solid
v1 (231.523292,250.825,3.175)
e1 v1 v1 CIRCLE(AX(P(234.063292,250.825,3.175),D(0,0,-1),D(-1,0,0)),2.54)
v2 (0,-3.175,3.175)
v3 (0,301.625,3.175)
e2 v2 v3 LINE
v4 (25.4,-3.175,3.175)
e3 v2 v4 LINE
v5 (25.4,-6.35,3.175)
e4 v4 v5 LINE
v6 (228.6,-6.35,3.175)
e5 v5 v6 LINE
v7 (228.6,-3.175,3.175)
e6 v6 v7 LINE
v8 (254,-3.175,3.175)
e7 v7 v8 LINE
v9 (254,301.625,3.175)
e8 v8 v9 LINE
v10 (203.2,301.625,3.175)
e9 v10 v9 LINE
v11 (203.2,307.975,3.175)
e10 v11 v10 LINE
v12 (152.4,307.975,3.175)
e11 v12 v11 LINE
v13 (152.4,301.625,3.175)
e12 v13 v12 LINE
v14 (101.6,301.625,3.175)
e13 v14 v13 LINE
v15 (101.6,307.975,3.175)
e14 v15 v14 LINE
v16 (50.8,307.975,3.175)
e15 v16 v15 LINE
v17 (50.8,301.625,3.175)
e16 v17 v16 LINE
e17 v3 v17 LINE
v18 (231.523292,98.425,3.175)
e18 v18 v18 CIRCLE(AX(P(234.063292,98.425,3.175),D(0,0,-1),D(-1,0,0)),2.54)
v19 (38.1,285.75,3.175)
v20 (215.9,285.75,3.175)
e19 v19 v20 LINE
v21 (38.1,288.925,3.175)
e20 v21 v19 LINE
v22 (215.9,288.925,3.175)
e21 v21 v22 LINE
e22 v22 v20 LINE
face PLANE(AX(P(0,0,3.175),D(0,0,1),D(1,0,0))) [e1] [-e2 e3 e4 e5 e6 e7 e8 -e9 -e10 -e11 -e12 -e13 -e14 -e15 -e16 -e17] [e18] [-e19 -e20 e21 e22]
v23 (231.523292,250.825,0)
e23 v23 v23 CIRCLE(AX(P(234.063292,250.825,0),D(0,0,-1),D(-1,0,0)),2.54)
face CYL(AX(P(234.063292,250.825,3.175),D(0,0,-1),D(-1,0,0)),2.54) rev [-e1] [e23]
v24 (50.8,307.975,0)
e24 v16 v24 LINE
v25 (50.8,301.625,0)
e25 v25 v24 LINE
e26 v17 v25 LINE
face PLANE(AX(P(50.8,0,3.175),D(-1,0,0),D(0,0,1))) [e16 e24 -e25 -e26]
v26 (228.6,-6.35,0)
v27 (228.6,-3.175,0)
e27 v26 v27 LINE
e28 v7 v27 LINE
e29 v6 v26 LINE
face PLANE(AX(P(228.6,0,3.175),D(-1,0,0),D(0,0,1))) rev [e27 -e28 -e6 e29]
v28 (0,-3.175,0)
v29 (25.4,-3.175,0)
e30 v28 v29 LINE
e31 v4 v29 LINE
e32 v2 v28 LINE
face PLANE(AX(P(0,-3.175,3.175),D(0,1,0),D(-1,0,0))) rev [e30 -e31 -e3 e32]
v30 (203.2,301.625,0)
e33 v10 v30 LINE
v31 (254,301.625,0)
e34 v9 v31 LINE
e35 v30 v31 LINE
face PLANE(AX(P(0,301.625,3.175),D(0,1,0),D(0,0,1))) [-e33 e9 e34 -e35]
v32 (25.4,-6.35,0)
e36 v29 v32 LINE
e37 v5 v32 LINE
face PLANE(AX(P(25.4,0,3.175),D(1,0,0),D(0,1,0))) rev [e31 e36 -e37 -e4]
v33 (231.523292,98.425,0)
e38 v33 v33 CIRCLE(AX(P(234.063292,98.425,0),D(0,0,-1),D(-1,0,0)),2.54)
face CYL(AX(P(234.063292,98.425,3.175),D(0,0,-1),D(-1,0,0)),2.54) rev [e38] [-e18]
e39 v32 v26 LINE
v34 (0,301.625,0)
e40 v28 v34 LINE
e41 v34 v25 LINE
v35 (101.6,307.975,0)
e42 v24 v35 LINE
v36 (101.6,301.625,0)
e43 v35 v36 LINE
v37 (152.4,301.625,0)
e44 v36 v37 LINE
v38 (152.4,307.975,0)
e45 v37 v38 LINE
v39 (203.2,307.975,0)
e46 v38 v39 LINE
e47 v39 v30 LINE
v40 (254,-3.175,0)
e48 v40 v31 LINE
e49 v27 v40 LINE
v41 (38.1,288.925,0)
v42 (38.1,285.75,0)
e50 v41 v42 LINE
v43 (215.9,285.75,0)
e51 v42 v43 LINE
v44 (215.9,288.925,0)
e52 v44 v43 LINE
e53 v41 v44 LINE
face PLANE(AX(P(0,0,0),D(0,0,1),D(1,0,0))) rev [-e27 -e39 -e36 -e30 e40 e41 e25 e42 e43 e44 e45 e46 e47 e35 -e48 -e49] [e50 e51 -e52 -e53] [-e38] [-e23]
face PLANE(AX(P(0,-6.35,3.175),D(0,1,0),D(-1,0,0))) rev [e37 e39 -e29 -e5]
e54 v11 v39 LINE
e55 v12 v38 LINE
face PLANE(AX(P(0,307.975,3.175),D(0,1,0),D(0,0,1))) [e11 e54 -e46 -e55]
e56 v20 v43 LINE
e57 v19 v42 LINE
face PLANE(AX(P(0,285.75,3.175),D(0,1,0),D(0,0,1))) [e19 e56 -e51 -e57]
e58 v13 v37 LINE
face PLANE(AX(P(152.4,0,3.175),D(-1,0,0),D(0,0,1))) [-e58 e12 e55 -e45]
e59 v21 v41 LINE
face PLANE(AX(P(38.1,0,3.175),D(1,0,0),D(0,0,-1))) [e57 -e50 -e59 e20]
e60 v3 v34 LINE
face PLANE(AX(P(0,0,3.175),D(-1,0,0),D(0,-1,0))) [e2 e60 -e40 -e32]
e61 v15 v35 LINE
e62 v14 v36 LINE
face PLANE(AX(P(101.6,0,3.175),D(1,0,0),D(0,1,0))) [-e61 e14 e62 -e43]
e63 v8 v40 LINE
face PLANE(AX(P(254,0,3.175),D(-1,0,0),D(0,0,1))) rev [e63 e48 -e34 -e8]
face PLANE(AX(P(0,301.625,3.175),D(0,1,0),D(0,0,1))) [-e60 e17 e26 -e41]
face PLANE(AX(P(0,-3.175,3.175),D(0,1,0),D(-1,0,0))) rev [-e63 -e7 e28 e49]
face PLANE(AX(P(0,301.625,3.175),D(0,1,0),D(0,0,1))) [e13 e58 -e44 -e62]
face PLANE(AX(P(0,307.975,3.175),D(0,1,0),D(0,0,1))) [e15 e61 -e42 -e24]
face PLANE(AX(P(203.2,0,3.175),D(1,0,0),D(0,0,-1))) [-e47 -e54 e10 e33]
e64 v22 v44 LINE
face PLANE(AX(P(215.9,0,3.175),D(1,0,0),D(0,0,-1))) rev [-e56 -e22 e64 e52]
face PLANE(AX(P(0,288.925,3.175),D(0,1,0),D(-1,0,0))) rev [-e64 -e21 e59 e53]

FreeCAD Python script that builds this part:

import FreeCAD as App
import Part
import Sketcher
Q = App.Units.Quantity


def add_polygon(sketch, points):
    """Adds a closed chain of lines whose ends are joined by coincident constraints."""
    first, n = sketch.GeometryCount, len(points)
    for a, b in zip(points, points[1:] + points[:1]):
        sketch.addGeometry(Part.LineSegment(App.Vector(*a, 0), App.Vector(*b, 0)), False)
    for i in range(n):
        sketch.addConstraint(Sketcher.Constraint("Coincident", first + i, 2, first + (i + 1) % n, 1))

doc = App.newDocument("Part")
body = doc.addObject("PartDesign::Body", "Body")

sketch1 = doc.addObject("Sketcher::SketchObject", "Sketch")
body.addObject(sketch1)
sketch1.AttachmentSupport = (doc.XY_Plane, [""])
sketch1.MapMode = "FlatFace"
add_polygon(sketch1, [(228.6, -6.35), (228.6, -3.175), (254, -3.175), (254, 301.625), (203.2, 301.625), (203.2, 307.975), (152.4, 307.975), (152.4, 301.625), (101.6, 301.625), (101.6, 307.975), (50.8, 307.975), (50.8, 301.625), (0, 301.625), (0, -3.175), (25.4, -3.175), (25.4, -6.35)])
add_polygon(sketch1, [(215.9, 285.75), (38.1, 285.75), (38.1, 288.925), (215.9, 288.925)])
sketch1.addConstraint([
    Sketcher.Constraint("Vertical", 0),
    Sketcher.Constraint("Horizontal", 1),
    Sketcher.Constraint("Vertical", 2),
    Sketcher.Constraint("Horizontal", 3),
    Sketcher.Constraint("Vertical", 4),
    Sketcher.Constraint("Horizontal", 5),
    Sketcher.Constraint("Vertical", 6),
    Sketcher.Constraint("Horizontal", 7),
    Sketcher.Constraint("Vertical", 8),
    Sketcher.Constraint("Horizontal", 9),
    Sketcher.Constraint("Vertical", 10),
    Sketcher.Constraint("Horizontal", 11),
    Sketcher.Constraint("Vertical", 12),
    Sketcher.Constraint("Horizontal", 13),
    Sketcher.Constraint("Vertical", 14),
    Sketcher.Constraint("Horizontal", 15),
    Sketcher.Constraint("Horizontal", 16),
    Sketcher.Constraint("Vertical", 17),
    Sketcher.Constraint("Horizontal", 18),
    Sketcher.Constraint("Vertical", 19),
    Sketcher.Constraint("PointOnObject", 11, 2, -2),
    Sketcher.Constraint("Horizontal", 3, 2, 6, 2),
    Sketcher.Constraint("Horizontal", 5, 2, 8, 2),
    Sketcher.Constraint("Horizontal", 7, 2, 10, 2),
    Sketcher.Constraint("Horizontal", 1, 2, 12, 2),
    Sketcher.Constraint("Equal", 3, 5),
    Sketcher.Constraint("Equal", 5, 7),
    Sketcher.Constraint("Equal", 7, 9),
    Sketcher.Constraint("Equal", 9, 11),
    Sketcher.Constraint("Equal", 1, 13),
    Sketcher.Constraint("Equal", 14, 17),
    Sketcher.Constraint("DistanceX", 1, 1, 1, 2, Q("1 in")),
    Sketcher.Constraint("DistanceX", 3, 2, 3, 1, Q("2 in")),
    Sketcher.Constraint("DistanceX", 16, 2, 16, 1, Q("7 in")),
    Sketcher.Constraint("DistanceY", 2, 1, 2, 2, Q("12 in")),
    Sketcher.Constraint("DistanceY", 4, 1, 4, 2, Q("0.25 in")),
    Sketcher.Constraint("DistanceX", -1, 1, 16, 2, Q("1.5 in")),
    Sketcher.Constraint("DistanceY", 17, 2, 10, 2, Q("0.5 in")),
    Sketcher.Constraint("DistanceY", 0, 1, 0, 2, Q("0.125 in")),
    Sketcher.Constraint("DistanceY", 14, 2, -1, 1, Q("0.25 in")),
])
pad1 = doc.addObject("PartDesign::Pad", "Pad")
body.addObject(pad1)
pad1.Profile = sketch1
pad1.Length = Q("0.125 in")

sketch2 = doc.addObject("Sketcher::SketchObject", "Sketch001")
body.addObject(sketch2)
sketch2.AttachmentSupport = (doc.XY_Plane, [""])
sketch2.MapMode = "FlatFace"
sketch2.addGeometry([
    Part.Circle(App.Vector(234.063292, 250.825, 0), App.Vector(0, 0, 1), 2.54),
    Part.Circle(App.Vector(234.063292, 98.425, 0), App.Vector(0, 0, 1), 2.54),
], False)
sketch2.addConstraint([
    Sketcher.Constraint("Equal", 0, 1),
    Sketcher.Constraint("Vertical", 0, 3, 1, 3),
    Sketcher.Constraint("Diameter", 0, Q("0.2 in")),
    Sketcher.Constraint("DistanceY", 1, 3, 0, 3, Q("6 in")),
    Sketcher.Constraint("DistanceY", -1, 1, 0, 3, Q("9.875 in")),
    Sketcher.Constraint("DistanceX", -1, 1, 0, 3, Q("234.063292 mm")),
])
pocket1 = doc.addObject("PartDesign::Pocket", "Pocket")
body.addObject(pocket1)
pocket1.Profile = sketch2
pocket1.Type = "ThroughAll"
pocket1.Reversed = True

doc.recompute()
